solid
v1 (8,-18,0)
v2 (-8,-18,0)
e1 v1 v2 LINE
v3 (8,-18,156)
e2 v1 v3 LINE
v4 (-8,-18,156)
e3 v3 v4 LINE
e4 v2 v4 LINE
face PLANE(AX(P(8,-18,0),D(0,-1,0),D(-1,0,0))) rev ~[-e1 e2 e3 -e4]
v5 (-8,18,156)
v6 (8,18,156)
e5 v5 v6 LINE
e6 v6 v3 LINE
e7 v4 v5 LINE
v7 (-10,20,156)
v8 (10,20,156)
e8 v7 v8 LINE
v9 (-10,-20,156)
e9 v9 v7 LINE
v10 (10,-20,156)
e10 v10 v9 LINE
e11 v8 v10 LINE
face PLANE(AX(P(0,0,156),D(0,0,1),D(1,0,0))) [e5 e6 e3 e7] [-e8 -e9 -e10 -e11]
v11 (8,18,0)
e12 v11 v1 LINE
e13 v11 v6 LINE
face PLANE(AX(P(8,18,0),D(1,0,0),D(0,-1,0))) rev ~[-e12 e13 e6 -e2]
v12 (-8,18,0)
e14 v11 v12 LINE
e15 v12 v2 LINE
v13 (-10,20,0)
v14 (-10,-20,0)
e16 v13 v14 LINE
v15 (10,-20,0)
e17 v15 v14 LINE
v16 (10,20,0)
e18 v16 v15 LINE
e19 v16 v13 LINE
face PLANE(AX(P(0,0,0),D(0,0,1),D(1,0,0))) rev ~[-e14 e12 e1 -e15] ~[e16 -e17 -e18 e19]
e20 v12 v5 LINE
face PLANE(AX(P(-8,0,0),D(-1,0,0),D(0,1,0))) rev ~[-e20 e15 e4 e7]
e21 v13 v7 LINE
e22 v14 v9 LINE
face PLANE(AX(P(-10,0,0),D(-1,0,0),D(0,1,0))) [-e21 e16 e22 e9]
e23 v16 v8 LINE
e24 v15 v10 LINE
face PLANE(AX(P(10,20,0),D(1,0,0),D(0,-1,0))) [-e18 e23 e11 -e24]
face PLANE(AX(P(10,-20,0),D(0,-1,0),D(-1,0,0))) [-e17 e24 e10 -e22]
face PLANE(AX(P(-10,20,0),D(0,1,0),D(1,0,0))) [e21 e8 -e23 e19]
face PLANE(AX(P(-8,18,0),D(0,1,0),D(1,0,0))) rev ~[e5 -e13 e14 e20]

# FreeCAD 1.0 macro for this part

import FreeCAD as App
import Part
import Sketcher

doc = App.newDocument("Part")
body = doc.addObject("PartDesign::Body", "Body")

# Sketch on XY plane
sketch1 = doc.addObject("Sketcher::SketchObject", "Sketch")
body.addObject(sketch1)
sketch1.AttachmentSupport = (doc.XY_Plane, [""])
sketch1.MapMode = "FlatFace"
sketch1.addGeometry([
    Part.LineSegment(App.Vector(-10, 20, 0), App.Vector(-10, -20, 0)),  # 0
    Part.LineSegment(App.Vector(-10, -20, 0), App.Vector(10, -20, 0)),  # 1
    Part.LineSegment(App.Vector(10, -20, 0), App.Vector(10, 20, 0)),  # 2
    Part.LineSegment(App.Vector(10, 20, 0), App.Vector(-10, 20, 0)),  # 3
    Part.LineSegment(App.Vector(-8, 18, 0), App.Vector(8, 18, 0)),  # 4
    Part.LineSegment(App.Vector(8, 18, 0), App.Vector(8, -18, 0)),  # 5
    Part.LineSegment(App.Vector(8, -18, 0), App.Vector(-8, -18, 0)),  # 6
    Part.LineSegment(App.Vector(-8, -18, 0), App.Vector(-8, 18, 0)),  # 7
], False)
sketch1.addConstraint([
    Sketcher.Constraint("Coincident", 0, 2, 1, 1),
    Sketcher.Constraint("Coincident", 1, 2, 2, 1),
    Sketcher.Constraint("Coincident", 2, 2, 3, 1),
    Sketcher.Constraint("Coincident", 3, 2, 0, 1),
    Sketcher.Constraint("Coincident", 4, 2, 5, 1),
    Sketcher.Constraint("Coincident", 5, 2, 6, 1),
    Sketcher.Constraint("Coincident", 6, 2, 7, 1),
    Sketcher.Constraint("Coincident", 7, 2, 4, 1),
    Sketcher.Constraint("Vertical", 0),
    Sketcher.Constraint("Horizontal", 1),
    Sketcher.Constraint("Vertical", 2),
    Sketcher.Constraint("Horizontal", 3),
    Sketcher.Constraint("Horizontal", 4),
    Sketcher.Constraint("Vertical", 5),
    Sketcher.Constraint("Horizontal", 6),
    Sketcher.Constraint("Vertical", 7),
    Sketcher.Constraint("Symmetric", 0, 2, 2, 2, -1, 1),
    Sketcher.Constraint("Symmetric", 4, 2, 6, 2, -1, 1),
    Sketcher.Constraint("DistanceX", 1, 1, 1, 2, 20.0),
    Sketcher.Constraint("DistanceY", 0, 2, 0, 1, 40.0),
    Sketcher.Constraint("DistanceX", 4, 2, 2, 2, 2.0),
    Sketcher.Constraint("DistanceY", 4, 2, 2, 2, 2.0),
])
pad1 = doc.addObject("PartDesign::Pad", "Pad")
body.addObject(pad1)
pad1.Profile = sketch1
pad1.Length = 156

doc.recompute()
